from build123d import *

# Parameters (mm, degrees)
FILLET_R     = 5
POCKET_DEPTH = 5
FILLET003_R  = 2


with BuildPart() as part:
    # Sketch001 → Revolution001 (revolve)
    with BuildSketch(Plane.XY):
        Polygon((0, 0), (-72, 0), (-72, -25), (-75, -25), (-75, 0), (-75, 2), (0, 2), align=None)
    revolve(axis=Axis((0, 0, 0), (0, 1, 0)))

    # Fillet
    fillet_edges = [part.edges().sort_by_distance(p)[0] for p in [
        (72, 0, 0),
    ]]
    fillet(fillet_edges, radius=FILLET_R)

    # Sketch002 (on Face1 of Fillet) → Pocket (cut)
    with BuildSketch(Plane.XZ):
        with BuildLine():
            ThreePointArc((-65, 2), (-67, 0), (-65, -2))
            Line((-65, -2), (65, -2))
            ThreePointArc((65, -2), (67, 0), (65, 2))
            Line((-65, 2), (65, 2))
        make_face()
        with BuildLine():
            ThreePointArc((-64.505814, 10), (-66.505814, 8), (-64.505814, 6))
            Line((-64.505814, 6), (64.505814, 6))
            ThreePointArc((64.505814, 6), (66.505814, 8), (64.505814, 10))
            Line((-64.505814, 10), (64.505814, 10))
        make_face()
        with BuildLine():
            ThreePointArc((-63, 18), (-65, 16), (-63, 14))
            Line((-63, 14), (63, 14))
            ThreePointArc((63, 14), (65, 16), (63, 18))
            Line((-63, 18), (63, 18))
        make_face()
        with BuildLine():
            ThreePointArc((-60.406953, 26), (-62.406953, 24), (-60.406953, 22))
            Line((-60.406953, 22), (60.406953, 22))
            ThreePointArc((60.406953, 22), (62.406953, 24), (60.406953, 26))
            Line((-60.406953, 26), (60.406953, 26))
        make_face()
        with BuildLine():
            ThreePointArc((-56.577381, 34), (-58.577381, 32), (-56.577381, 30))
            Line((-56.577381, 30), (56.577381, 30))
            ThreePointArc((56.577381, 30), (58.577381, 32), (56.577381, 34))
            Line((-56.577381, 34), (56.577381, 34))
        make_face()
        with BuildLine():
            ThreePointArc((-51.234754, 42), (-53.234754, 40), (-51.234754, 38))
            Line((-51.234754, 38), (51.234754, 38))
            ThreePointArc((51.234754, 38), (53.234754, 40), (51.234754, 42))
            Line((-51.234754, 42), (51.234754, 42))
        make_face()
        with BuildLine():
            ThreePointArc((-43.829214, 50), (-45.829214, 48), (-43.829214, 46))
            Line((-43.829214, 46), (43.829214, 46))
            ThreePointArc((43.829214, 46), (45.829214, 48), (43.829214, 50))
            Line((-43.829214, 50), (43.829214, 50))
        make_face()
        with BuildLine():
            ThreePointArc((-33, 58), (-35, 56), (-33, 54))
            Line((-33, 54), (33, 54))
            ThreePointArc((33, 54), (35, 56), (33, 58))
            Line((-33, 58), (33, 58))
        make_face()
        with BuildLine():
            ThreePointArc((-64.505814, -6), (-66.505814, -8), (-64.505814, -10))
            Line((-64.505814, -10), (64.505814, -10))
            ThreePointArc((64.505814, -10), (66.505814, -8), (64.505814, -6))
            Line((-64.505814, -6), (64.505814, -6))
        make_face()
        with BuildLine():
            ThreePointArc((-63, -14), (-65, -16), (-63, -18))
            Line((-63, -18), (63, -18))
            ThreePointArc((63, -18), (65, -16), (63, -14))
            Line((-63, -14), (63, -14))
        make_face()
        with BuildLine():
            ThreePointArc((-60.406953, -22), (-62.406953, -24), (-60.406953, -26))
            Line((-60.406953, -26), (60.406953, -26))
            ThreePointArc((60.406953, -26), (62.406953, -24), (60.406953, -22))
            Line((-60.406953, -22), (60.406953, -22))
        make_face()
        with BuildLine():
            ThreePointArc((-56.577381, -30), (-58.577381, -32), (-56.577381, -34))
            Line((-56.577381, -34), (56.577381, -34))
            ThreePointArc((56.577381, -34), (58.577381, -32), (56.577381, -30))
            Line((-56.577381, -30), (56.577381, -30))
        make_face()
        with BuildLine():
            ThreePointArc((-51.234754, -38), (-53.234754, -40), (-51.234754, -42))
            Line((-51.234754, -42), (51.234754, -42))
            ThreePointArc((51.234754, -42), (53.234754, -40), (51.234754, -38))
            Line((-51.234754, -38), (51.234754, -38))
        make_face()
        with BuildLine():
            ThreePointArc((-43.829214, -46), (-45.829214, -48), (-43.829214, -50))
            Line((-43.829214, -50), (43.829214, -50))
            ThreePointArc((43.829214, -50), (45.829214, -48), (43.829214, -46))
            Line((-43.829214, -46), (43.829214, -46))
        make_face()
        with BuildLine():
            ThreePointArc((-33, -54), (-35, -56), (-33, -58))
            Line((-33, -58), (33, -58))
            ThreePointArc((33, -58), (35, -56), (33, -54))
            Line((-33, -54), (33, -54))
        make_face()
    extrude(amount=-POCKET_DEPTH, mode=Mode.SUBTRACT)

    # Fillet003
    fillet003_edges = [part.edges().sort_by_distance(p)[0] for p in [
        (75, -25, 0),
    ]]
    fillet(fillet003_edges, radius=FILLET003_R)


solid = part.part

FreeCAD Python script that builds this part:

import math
import FreeCAD as App
import Part
import Sketcher


def edges_at(feature, points):
    """Names of the edges that pass closest to the given points."""
    edges = feature.Shape.Edges
    near = lambda p: min(range(len(edges)), key=lambda i: edges[i].distToShape(Part.Vertex(*p))[0])
    return sorted({f"Edge{near(p) + 1}" for p in points})


def add_polygon(sketch, points):
    """Adds a closed chain of lines whose ends are joined by coincident constraints."""
    first, n = sketch.GeometryCount, len(points)
    for a, b in zip(points, points[1:] + points[:1]):
        sketch.addGeometry(Part.LineSegment(App.Vector(*a, 0), App.Vector(*b, 0)), False)
    for i in range(n):
        sketch.addConstraint(Sketcher.Constraint("Coincident", first + i, 2, first + (i + 1) % n, 1))

doc = App.newDocument("Part")
body = doc.addObject("PartDesign::Body", "Body")

sketch1 = body.newObject("Sketcher::SketchObject", "Sketch")
sketch1.AttachmentSupport = (doc.getObject("XY_Plane"), [""])
sketch1.MapMode = "FlatFace"
add_polygon(sketch1, [(-72, 0), (0, 0), (0, 2), (-75, 2), (-75, -25), (-72, -25)])
sketch1.addConstraint([
    Sketcher.Constraint("Horizontal", 0),
    Sketcher.Constraint("Vertical", 1),
    Sketcher.Constraint("Horizontal", 2),
    Sketcher.Constraint("Vertical", 3),
    Sketcher.Constraint("Horizontal", 4),
    Sketcher.Constraint("Vertical", 5),
    Sketcher.Constraint("Coincident", 0, 2, -1, 1),
    Sketcher.Constraint("DistanceX", 0, 1, 0, 2, 72.0),
    Sketcher.Constraint("DistanceX", 2, 2, 2, 1, 75.0),
    Sketcher.Constraint("DistanceY", 1, 1, 1, 2, 2.0),
    Sketcher.Constraint("DistanceY", 3, 2, 3, 1, 27.0),
])
revolution = body.newObject("PartDesign::Revolution", "Revolution")
revolution.Profile = sketch1
revolution.ReferenceAxis = (sketch1, ["V_Axis"])
revolution.Angle = 360
doc.recompute()

fillet = body.newObject("PartDesign::Fillet", "Fillet")
fillet.Base = (revolution, edges_at(revolution, [(72, 0, 0)]))
fillet.Radius = 5

sketch2 = body.newObject("Sketcher::SketchObject", "Sketch001")
sketch2.AttachmentSupport = (doc.getObject("XZ_Plane"), [""])
sketch2.MapMode = "FlatFace"
sketch2.addGeometry([
    Part.ArcOfCircle(Part.Circle(App.Vector(-65, 0, 0), App.Vector(0, 0, 1), 2), math.radians(90), math.radians(270)),
    Part.LineSegment(App.Vector(-65, -2, 0), App.Vector(65, -2, 0)),
    Part.ArcOfCircle(Part.Circle(App.Vector(65, 0, 0), App.Vector(0, 0, 1), 2), math.radians(-90), math.radians(90)),
    Part.LineSegment(App.Vector(65, 2, 0), App.Vector(-65, 2, 0)),
    Part.ArcOfCircle(Part.Circle(App.Vector(-64.5, 8, 0), App.Vector(0, 0, 1), 2), math.radians(90), math.radians(270)),
    Part.LineSegment(App.Vector(-64.5, 6, 0), App.Vector(64.5, 6, 0)),
    Part.ArcOfCircle(Part.Circle(App.Vector(64.5, 8, 0), App.Vector(0, 0, 1), 2), math.radians(-90), math.radians(90)),
    Part.LineSegment(App.Vector(64.5, 10, 0), App.Vector(-64.5, 10, 0)),
    Part.ArcOfCircle(Part.Circle(App.Vector(-63, 16, 0), App.Vector(0, 0, 1), 2), math.radians(90), math.radians(270)),
    Part.LineSegment(App.Vector(-63, 14, 0), App.Vector(63, 14, 0)),
    Part.ArcOfCircle(Part.Circle(App.Vector(63, 16, 0), App.Vector(0, 0, 1), 2), math.radians(-90), math.radians(90)),
    Part.LineSegment(App.Vector(63, 18, 0), App.Vector(-63, 18, 0)),
    Part.ArcOfCircle(Part.Circle(App.Vector(-60.4, 24, 0), App.Vector(0, 0, 1), 2), math.radians(90), math.radians(270)),
    Part.LineSegment(App.Vector(-60.4, 22, 0), App.Vector(60.4, 22, 0)),
    Part.ArcOfCircle(Part.Circle(App.Vector(60.4, 24, 0), App.Vector(0, 0, 1), 2), math.radians(-90), math.radians(90)),
    Part.LineSegment(App.Vector(60.4, 26, 0), App.Vector(-60.4, 26, 0)),
    Part.ArcOfCircle(Part.Circle(App.Vector(-56.6, 32, 0), App.Vector(0, 0, 1), 2), math.radians(90), math.radians(270)),
    Part.LineSegment(App.Vector(-56.6, 30, 0), App.Vector(56.6, 30, 0)),
    Part.ArcOfCircle(Part.Circle(App.Vector(56.6, 32, 0), App.Vector(0, 0, 1), 2), math.radians(-90), math.radians(90)),
    Part.LineSegment(App.Vector(56.6, 34, 0), App.Vector(-56.6, 34, 0)),
    Part.ArcOfCircle(Part.Circle(App.Vector(-51.2, 40, 0), App.Vector(0, 0, 1), 2), math.radians(90), math.radians(270)),
    Part.LineSegment(App.Vector(-51.2, 38, 0), App.Vector(51.2, 38, 0)),
    Part.ArcOfCircle(Part.Circle(App.Vector(51.2, 40, 0), App.Vector(0, 0, 1), 2), math.radians(-90), math.radians(90)),
    Part.LineSegment(App.Vector(51.2, 42, 0), App.Vector(-51.2, 42, 0)),
    Part.ArcOfCircle(Part.Circle(App.Vector(-43.8, 48, 0), App.Vector(0, 0, 1), 2), math.radians(90), math.radians(270)),
    Part.LineSegment(App.Vector(-43.8, 46, 0), App.Vector(43.8, 46, 0)),
    Part.ArcOfCircle(Part.Circle(App.Vector(43.8, 48, 0), App.Vector(0, 0, 1), 2), math.radians(-90), math.radians(90)),
    Part.LineSegment(App.Vector(43.8, 50, 0), App.Vector(-43.8, 50, 0)),
    Part.ArcOfCircle(Part.Circle(App.Vector(-33, 56, 0), App.Vector(0, 0, 1), 2), math.radians(90), math.radians(270)),
    Part.LineSegment(App.Vector(-33, 54, 0), App.Vector(33, 54, 0)),
    Part.ArcOfCircle(Part.Circle(App.Vector(33, 56, 0), App.Vector(0, 0, 1), 2), math.radians(-90), math.radians(90)),
    Part.LineSegment(App.Vector(33, 58, 0), App.Vector(-33, 58, 0)),
    Part.ArcOfCircle(Part.Circle(App.Vector(-64.5, -8, 0), App.Vector(0, 0, 1), 2), math.radians(90), math.radians(270)),
    Part.LineSegment(App.Vector(-64.5, -10, 0), App.Vector(64.5, -10, 0)),
    Part.ArcOfCircle(Part.Circle(App.Vector(64.5, -8, 0), App.Vector(0, 0, 1), 2), math.radians(-90), math.radians(90)),
    Part.LineSegment(App.Vector(64.5, -6, 0), App.Vector(-64.5, -6, 0)),
    Part.ArcOfCircle(Part.Circle(App.Vector(-63, -16, 0), App.Vector(0, 0, 1), 2), math.radians(90), math.radians(270)),
    Part.LineSegment(App.Vector(-63, -18, 0), App.Vector(63, -18, 0)),
    Part.ArcOfCircle(Part.Circle(App.Vector(63, -16, 0), App.Vector(0, 0, 1), 2), math.radians(-90), math.radians(90)),
    Part.LineSegment(App.Vector(63, -14, 0), App.Vector(-63, -14, 0)),
    Part.ArcOfCircle(Part.Circle(App.Vector(-60.4, -24, 0), App.Vector(0, 0, 1), 2), math.radians(90), math.radians(270)),
    Part.LineSegment(App.Vector(-60.4, -26, 0), App.Vector(60.4, -26, 0)),
    Part.ArcOfCircle(Part.Circle(App.Vector(60.4, -24, 0), App.Vector(0, 0, 1), 2), math.radians(-90), math.radians(90)),
    Part.LineSegment(App.Vector(60.4, -22, 0), App.Vector(-60.4, -22, 0)),
    Part.ArcOfCircle(Part.Circle(App.Vector(-56.6, -32, 0), App.Vector(0, 0, 1), 2), math.radians(90), math.radians(270)),
    Part.LineSegment(App.Vector(-56.6, -34, 0), App.Vector(56.6, -34, 0)),
    Part.ArcOfCircle(Part.Circle(App.Vector(56.6, -32, 0), App.Vector(0, 0, 1), 2), math.radians(-90), math.radians(90)),
    Part.LineSegment(App.Vector(56.6, -30, 0), App.Vector(-56.6, -30, 0)),
    Part.ArcOfCircle(Part.Circle(App.Vector(-51.2, -40, 0), App.Vector(0, 0, 1), 2), math.radians(90), math.radians(270)),
    Part.LineSegment(App.Vector(-51.2, -42, 0), App.Vector(51.2, -42, 0)),
    Part.ArcOfCircle(Part.Circle(App.Vector(51.2, -40, 0), App.Vector(0, 0, 1), 2), math.radians(-90), math.radians(90)),
    Part.LineSegment(App.Vector(51.2, -38, 0), App.Vector(-51.2, -38, 0)),
    Part.ArcOfCircle(Part.Circle(App.Vector(-43.8, -48, 0), App.Vector(0, 0, 1), 2), math.radians(90), math.radians(270)),
    Part.LineSegment(App.Vector(-43.8, -50, 0), App.Vector(43.8, -50, 0)),
    Part.ArcOfCircle(Part.Circle(App.Vector(43.8, -48, 0), App.Vector(0, 0, 1), 2), math.radians(-90), math.radians(90)),
    Part.LineSegment(App.Vector(43.8, -46, 0), App.Vector(-43.8, -46, 0)),
    Part.ArcOfCircle(Part.Circle(App.Vector(-33, -56, 0), App.Vector(0, 0, 1), 2), math.radians(90), math.radians(270)),
    Part.LineSegment(App.Vector(-33, -58, 0), App.Vector(33, -58, 0)),
    Part.ArcOfCircle(Part.Circle(App.Vector(33, -56, 0), App.Vector(0, 0, 1), 2), math.radians(-90), math.radians(90)),
    Part.LineSegment(App.Vector(33, -54, 0), App.Vector(-33, -54, 0)),
], False)
sketch2.addConstraint([
    Sketcher.Constraint("Tangent", 0, 2, 1, 1),
    Sketcher.Constraint("Tangent", 1, 2, 2, 1),
    Sketcher.Constraint("Tangent", 2, 2, 3, 1),
    Sketcher.Constraint("Tangent", 3, 2, 0, 1),
    Sketcher.Constraint("Tangent", 4, 2, 5, 1),
    Sketcher.Constraint("Tangent", 5, 2, 6, 1),
    Sketcher.Constraint("Tangent", 6, 2, 7, 1),
    Sketcher.Constraint("Tangent", 7, 2, 4, 1),
    Sketcher.Constraint("Tangent", 8, 2, 9, 1),
    Sketcher.Constraint("Tangent", 9, 2, 10, 1),
    Sketcher.Constraint("Tangent", 10, 2, 11, 1),
    Sketcher.Constraint("Tangent", 11, 2, 8, 1),
    Sketcher.Constraint("Tangent", 12, 2, 13, 1),
    Sketcher.Constraint("Tangent", 13, 2, 14, 1),
    Sketcher.Constraint("Tangent", 14, 2, 15, 1),
    Sketcher.Constraint("Tangent", 15, 2, 12, 1),
    Sketcher.Constraint("Tangent", 16, 2, 17, 1),
    Sketcher.Constraint("Tangent", 17, 2, 18, 1),
    Sketcher.Constraint("Tangent", 18, 2, 19, 1),
    Sketcher.Constraint("Tangent", 19, 2, 16, 1),
    Sketcher.Constraint("Tangent", 20, 2, 21, 1),
    Sketcher.Constraint("Tangent", 21, 2, 22, 1),
    Sketcher.Constraint("Tangent", 22, 2, 23, 1),
    Sketcher.Constraint("Tangent", 23, 2, 20, 1),
    Sketcher.Constraint("Tangent", 24, 2, 25, 1),
    Sketcher.Constraint("Tangent", 25, 2, 26, 1),
    Sketcher.Constraint("Tangent", 26, 2, 27, 1),
    Sketcher.Constraint("Tangent", 27, 2, 24, 1),
    Sketcher.Constraint("Tangent", 28, 2, 29, 1),
    Sketcher.Constraint("Tangent", 29, 2, 30, 1),
    Sketcher.Constraint("Tangent", 30, 2, 31, 1),
    Sketcher.Constraint("Tangent", 31, 2, 28, 1),
    Sketcher.Constraint("Tangent", 32, 2, 33, 1),
    Sketcher.Constraint("Tangent", 33, 2, 34, 1),
    Sketcher.Constraint("Tangent", 34, 2, 35, 1),
    Sketcher.Constraint("Tangent", 35, 2, 32, 1),
    Sketcher.Constraint("Tangent", 36, 2, 37, 1),
    Sketcher.Constraint("Tangent", 37, 2, 38, 1),
    Sketcher.Constraint("Tangent", 38, 2, 39, 1),
    Sketcher.Constraint("Tangent", 39, 2, 36, 1),
    Sketcher.Constraint("Tangent", 40, 2, 41, 1),
    Sketcher.Constraint("Tangent", 41, 2, 42, 1),
    Sketcher.Constraint("Tangent", 42, 2, 43, 1),
    Sketcher.Constraint("Tangent", 43, 2, 40, 1),
    Sketcher.Constraint("Tangent", 44, 2, 45, 1),
    Sketcher.Constraint("Tangent", 45, 2, 46, 1),
    Sketcher.Constraint("Tangent", 46, 2, 47, 1),
    Sketcher.Constraint("Tangent", 47, 2, 44, 1),
    Sketcher.Constraint("Tangent", 48, 2, 49, 1),
    Sketcher.Constraint("Tangent", 49, 2, 50, 1),
    Sketcher.Constraint("Tangent", 50, 2, 51, 1),
    Sketcher.Constraint("Tangent", 51, 2, 48, 1),
    Sketcher.Constraint("Tangent", 52, 2, 53, 1),
    Sketcher.Constraint("Tangent", 53, 2, 54, 1),
    Sketcher.Constraint("Tangent", 54, 2, 55, 1),
    Sketcher.Constraint("Tangent", 55, 2, 52, 1),
    Sketcher.Constraint("Tangent", 56, 2, 57, 1),
    Sketcher.Constraint("Tangent", 57, 2, 58, 1),
    Sketcher.Constraint("Tangent", 58, 2, 59, 1),
    Sketcher.Constraint("Tangent", 59, 2, 56, 1),
    Sketcher.Constraint("Horizontal", 1),
    Sketcher.Constraint("Horizontal", 3),
    Sketcher.Constraint("Horizontal", 5),
    Sketcher.Constraint("Horizontal", 7),
    Sketcher.Constraint("Horizontal", 9),
    Sketcher.Constraint("Horizontal", 11),
    Sketcher.Constraint("Horizontal", 13),
    Sketcher.Constraint("Horizontal", 15),
    Sketcher.Constraint("Horizontal", 17),
    Sketcher.Constraint("Horizontal", 19),
    Sketcher.Constraint("Horizontal", 21),
    Sketcher.Constraint("Horizontal", 23),
    Sketcher.Constraint("Horizontal", 25),
    Sketcher.Constraint("Horizontal", 27),
    Sketcher.Constraint("Horizontal", 29),
    Sketcher.Constraint("Horizontal", 31),
    Sketcher.Constraint("Horizontal", 33),
    Sketcher.Constraint("Horizontal", 35),
    Sketcher.Constraint("Horizontal", 37),
    Sketcher.Constraint("Horizontal", 39),
    Sketcher.Constraint("Horizontal", 41),
    Sketcher.Constraint("Horizontal", 43),
    Sketcher.Constraint("Horizontal", 45),
    Sketcher.Constraint("Horizontal", 47),
    Sketcher.Constraint("Horizontal", 49),
    Sketcher.Constraint("Horizontal", 51),
    Sketcher.Constraint("Horizontal", 53),
    Sketcher.Constraint("Horizontal", 55),
    Sketcher.Constraint("Horizontal", 57),
    Sketcher.Constraint("Horizontal", 59),
    Sketcher.Constraint("Equal", 2, 4),
    Sketcher.Constraint("Equal", 6, 8),
    Sketcher.Constraint("Equal", 10, 12),
    Sketcher.Constraint("Equal", 14, 16),
    Sketcher.Constraint("Equal", 18, 20),
    Sketcher.Constraint("Equal", 22, 24),
    Sketcher.Constraint("Equal", 26, 28),
    Sketcher.Constraint("Equal", 30, 32),
    Sketcher.Constraint("Equal", 34, 36),
    Sketcher.Constraint("Equal", 38, 40),
    Sketcher.Constraint("Equal", 42, 44),
    Sketcher.Constraint("Equal", 46, 48),
    Sketcher.Constraint("Equal", 50, 52),
    Sketcher.Constraint("Equal", 54, 56),
    Sketcher.Constraint("Symmetric", 0, 3, 2, 3, -1, 1),
    Sketcher.Constraint("Symmetric", 6, 3, 32, 3, -1, 1),
    Sketcher.Constraint("Symmetric", 10, 3, 36, 3, -1, 1),
    Sketcher.Constraint("Symmetric", 14, 3, 40, 3, -1, 1),
    Sketcher.Constraint("Symmetric", 18, 3, 44, 3, -1, 1),
    Sketcher.Constraint("Symmetric", 22, 3, 48, 3, -1, 1),
    Sketcher.Constraint("Symmetric", 26, 3, 52, 3, -1, 1),
    Sketcher.Constraint("Symmetric", 30, 3, 56, 3, -1, 1),
    Sketcher.Constraint("Vertical", 4, 3, 32, 3),
    Sketcher.Constraint("Vertical", 6, 3, 34, 3),
    Sketcher.Constraint("Vertical", 8, 3, 36, 3),
    Sketcher.Constraint("Vertical", 10, 3, 38, 3),
    Sketcher.Constraint("Vertical", 12, 3, 40, 3),
    Sketcher.Constraint("Vertical", 14, 3, 42, 3),
    Sketcher.Constraint("Vertical", 16, 3, 44, 3),
    Sketcher.Constraint("Vertical", 18, 3, 46, 3),
    Sketcher.Constraint("Vertical", 20, 3, 48, 3),
    Sketcher.Constraint("Vertical", 22, 3, 50, 3),
    Sketcher.Constraint("Vertical", 24, 3, 52, 3),
    Sketcher.Constraint("Vertical", 26, 3, 54, 3),
    Sketcher.Constraint("Vertical", 28, 3, 56, 3),
    Sketcher.Constraint("Vertical", 30, 3, 58, 3),
    Sketcher.Constraint("Radius", 0, 2.0),
    Sketcher.Constraint("DistanceX", 1, 1, 1, 2, 130.0),
    Sketcher.Constraint("DistanceX", 9, 1, 9, 2, 126.0),
    Sketcher.Constraint("DistanceX", 29, 1, 29, 2, 66.0),
    Sketcher.Constraint("DistanceY", -1, 1, 4, 3, 8.0),
    Sketcher.Constraint("DistanceY", -1, 1, 8, 3, 16.0),
    Sketcher.Constraint("DistanceY", -1, 1, 12, 3, 24.0),
    Sketcher.Constraint("DistanceY", -1, 1, 16, 3, 32.0),
    Sketcher.Constraint("DistanceY", -1, 1, 20, 3, 40.0),
    Sketcher.Constraint("DistanceY", -1, 1, 24, 3, 48.0),
    Sketcher.Constraint("DistanceY", -1, 1, 28, 3, 56.0),
    Sketcher.Constraint("DistanceX", 5, 1, 5, 2, 129.011628),
    Sketcher.Constraint("DistanceX", 21, 1, 21, 2, 102.469508),
    Sketcher.Constraint("DistanceX", 25, 1, 25, 2, 87.658428),
    Sketcher.Constraint("DistanceX", 13, 1, 13, 2, 120.813906),
    Sketcher.Constraint("DistanceX", 17, 1, 17, 2, 113.154762),
])
pocket1 = body.newObject("PartDesign::Pocket", "Pocket")
pocket1.Profile = sketch2
pocket1.Length = 5
doc.recompute()

fillet2 = body.newObject("PartDesign::Fillet", "Fillet001")
fillet2.Base = (pocket1, edges_at(pocket1, [(75, -25, 0)]))
fillet2.Radius = 2

doc.recompute()
